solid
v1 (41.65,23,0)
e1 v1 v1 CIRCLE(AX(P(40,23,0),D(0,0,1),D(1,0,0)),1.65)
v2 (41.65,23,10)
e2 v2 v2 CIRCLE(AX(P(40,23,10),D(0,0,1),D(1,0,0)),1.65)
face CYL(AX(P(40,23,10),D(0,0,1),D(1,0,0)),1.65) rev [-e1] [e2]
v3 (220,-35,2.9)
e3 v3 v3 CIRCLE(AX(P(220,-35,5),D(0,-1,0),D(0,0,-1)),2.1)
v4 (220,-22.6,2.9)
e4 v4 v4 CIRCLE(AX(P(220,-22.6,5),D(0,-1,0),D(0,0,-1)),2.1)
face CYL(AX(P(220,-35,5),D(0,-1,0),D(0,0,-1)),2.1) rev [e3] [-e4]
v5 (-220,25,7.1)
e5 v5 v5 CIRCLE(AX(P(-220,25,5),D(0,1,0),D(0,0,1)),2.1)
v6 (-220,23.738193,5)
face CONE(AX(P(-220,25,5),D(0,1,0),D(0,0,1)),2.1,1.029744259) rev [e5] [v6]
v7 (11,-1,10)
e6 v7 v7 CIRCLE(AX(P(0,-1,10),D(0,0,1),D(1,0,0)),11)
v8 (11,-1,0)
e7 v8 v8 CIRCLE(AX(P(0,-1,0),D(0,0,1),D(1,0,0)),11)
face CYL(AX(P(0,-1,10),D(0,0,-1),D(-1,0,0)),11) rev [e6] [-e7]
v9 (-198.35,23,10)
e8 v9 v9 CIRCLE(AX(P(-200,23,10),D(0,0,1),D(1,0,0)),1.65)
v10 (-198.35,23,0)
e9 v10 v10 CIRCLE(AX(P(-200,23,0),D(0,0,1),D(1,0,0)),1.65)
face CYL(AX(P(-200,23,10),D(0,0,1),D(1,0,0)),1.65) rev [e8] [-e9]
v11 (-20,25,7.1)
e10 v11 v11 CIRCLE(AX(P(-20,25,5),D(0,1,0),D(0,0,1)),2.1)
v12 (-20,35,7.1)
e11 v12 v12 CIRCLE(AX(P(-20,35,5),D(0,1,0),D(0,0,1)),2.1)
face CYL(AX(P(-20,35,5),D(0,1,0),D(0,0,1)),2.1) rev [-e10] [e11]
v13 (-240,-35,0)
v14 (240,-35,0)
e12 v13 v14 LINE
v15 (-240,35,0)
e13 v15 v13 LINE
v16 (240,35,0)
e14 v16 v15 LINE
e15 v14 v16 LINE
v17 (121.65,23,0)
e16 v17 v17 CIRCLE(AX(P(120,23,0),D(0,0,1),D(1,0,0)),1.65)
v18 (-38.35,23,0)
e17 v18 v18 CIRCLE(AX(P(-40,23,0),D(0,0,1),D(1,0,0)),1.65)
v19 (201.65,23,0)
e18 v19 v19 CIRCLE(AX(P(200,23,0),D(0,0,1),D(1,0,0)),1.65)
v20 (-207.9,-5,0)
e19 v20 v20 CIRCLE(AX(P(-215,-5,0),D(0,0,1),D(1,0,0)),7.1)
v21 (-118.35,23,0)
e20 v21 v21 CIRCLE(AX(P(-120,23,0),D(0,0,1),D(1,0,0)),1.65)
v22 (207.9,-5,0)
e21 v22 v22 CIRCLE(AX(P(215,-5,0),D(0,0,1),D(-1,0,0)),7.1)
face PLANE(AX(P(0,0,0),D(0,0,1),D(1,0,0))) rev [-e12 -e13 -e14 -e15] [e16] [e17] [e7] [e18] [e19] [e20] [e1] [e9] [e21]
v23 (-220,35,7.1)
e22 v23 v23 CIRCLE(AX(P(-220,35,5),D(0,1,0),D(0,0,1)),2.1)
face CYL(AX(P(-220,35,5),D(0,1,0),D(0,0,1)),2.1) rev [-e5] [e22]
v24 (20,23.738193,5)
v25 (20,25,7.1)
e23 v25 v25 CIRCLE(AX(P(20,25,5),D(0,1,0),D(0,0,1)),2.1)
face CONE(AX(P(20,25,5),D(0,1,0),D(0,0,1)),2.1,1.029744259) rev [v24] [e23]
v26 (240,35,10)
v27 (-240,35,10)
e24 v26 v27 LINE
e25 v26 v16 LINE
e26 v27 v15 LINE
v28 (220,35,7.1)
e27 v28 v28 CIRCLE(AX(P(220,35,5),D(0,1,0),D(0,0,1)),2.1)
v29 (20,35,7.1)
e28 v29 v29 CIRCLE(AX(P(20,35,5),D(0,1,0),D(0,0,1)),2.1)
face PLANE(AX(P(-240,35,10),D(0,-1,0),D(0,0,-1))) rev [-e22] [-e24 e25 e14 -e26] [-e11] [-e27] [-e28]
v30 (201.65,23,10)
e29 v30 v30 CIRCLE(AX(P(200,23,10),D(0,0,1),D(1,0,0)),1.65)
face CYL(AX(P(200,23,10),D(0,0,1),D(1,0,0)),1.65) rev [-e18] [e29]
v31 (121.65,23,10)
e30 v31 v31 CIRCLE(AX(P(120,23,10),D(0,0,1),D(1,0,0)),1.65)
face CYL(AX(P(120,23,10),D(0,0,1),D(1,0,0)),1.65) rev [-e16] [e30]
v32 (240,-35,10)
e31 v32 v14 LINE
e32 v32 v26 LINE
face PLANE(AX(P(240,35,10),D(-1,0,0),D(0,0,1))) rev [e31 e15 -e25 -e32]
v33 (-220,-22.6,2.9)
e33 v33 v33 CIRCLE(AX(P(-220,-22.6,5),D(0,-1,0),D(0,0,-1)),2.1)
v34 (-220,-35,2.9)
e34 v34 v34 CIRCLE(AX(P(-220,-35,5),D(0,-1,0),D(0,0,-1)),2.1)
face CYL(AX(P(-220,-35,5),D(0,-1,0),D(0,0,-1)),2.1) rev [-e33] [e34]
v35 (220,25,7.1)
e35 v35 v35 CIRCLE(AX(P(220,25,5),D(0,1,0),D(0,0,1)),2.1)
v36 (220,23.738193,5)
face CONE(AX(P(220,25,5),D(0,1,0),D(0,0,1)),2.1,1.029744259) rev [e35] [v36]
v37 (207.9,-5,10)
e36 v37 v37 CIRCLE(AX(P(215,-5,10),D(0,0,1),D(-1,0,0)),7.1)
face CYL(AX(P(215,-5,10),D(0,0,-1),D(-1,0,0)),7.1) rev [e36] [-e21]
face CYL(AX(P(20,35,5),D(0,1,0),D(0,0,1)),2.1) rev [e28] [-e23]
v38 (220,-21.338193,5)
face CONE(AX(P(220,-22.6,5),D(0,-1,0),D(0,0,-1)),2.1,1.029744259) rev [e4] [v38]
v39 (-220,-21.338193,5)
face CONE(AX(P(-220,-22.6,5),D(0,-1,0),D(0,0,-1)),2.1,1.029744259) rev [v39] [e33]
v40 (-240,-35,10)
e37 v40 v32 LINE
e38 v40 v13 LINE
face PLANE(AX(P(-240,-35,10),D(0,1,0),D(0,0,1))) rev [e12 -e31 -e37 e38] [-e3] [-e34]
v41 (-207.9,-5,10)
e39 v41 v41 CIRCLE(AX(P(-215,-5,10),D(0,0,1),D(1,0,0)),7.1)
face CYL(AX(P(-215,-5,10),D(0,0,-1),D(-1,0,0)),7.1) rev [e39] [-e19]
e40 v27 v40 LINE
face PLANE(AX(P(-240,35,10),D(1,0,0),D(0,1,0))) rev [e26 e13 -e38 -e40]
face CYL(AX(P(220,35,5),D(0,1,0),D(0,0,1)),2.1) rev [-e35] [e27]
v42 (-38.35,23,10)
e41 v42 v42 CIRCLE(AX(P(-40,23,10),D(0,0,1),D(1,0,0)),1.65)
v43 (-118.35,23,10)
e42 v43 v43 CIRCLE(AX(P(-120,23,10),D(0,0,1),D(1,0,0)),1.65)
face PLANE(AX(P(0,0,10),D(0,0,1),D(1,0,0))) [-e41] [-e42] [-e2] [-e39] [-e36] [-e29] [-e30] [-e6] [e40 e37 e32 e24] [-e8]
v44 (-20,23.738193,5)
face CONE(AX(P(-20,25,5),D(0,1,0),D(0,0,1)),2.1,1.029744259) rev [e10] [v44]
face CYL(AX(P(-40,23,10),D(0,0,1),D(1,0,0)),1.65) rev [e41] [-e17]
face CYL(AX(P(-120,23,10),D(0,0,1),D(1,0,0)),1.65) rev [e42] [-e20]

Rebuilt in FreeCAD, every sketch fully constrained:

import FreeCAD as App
import Part
import Sketcher
Q = App.Units.Quantity

doc = App.newDocument("Part")
body = doc.addObject("PartDesign::Body", "Body")

sketch1 = body.newObject("Sketcher::SketchObject", "Sketch")
sketch1.AttachmentSupport = (doc.getObject("XY_Plane"), [""])
sketch1.MapMode = "FlatFace"
sketch1.addGeometry(Part.LineSegment(App.Vector(-240, 35, 0), App.Vector(-240, -35, 0)), False)
sketch1.addGeometry(Part.LineSegment(App.Vector(-240, -35, 0), App.Vector(240, -35, 0)), False)
sketch1.addGeometry(Part.LineSegment(App.Vector(240, -35, 0), App.Vector(240, 35, 0)), False)
sketch1.addGeometry(Part.LineSegment(App.Vector(240, 35, 0), App.Vector(-240, 35, 0)), False)
sketch1.addGeometry(Part.Circle(App.Vector(-215, -5, 0), App.Vector(0, 0, 1), 7.1), False)
sketch1.addGeometry(Part.Circle(App.Vector(215, -5, 0), App.Vector(0, 0, 1), 7.1), False)
sketch1.addGeometry(Part.Circle(App.Vector(0, -1, 0), App.Vector(0, 0, 1), 11), False)
sketch1.addConstraint(Sketcher.Constraint("Coincident", 0, 2, 1, 1))
sketch1.addConstraint(Sketcher.Constraint("Coincident", 1, 2, 2, 1))
sketch1.addConstraint(Sketcher.Constraint("Coincident", 2, 2, 3, 1))
sketch1.addConstraint(Sketcher.Constraint("Coincident", 3, 2, 0, 1))
sketch1.addConstraint(Sketcher.Constraint("Vertical", 0))
sketch1.addConstraint(Sketcher.Constraint("Horizontal", 1))
sketch1.addConstraint(Sketcher.Constraint("Vertical", 2))
sketch1.addConstraint(Sketcher.Constraint("Horizontal", 3))
sketch1.addConstraint(Sketcher.Constraint("Equal", 4, 5))
sketch1.addConstraint(Sketcher.Constraint("Symmetric", 0, 2, 2, 2, -1, 1))
sketch1.addConstraint(Sketcher.Constraint("Symmetric", 4, 3, 5, 3, -2))
sketch1.addConstraint(Sketcher.Constraint("PointOnObject", 6, 3, -2))
sketch1.addConstraint(Sketcher.Constraint("Diameter", 6, Q("22 mm")))
sketch1.addConstraint(Sketcher.Constraint("Diameter", 4, Q("14.2 mm")))
sketch1.addConstraint(Sketcher.Constraint("DistanceX", 1, 1, 1, 2, Q("480 mm")))
sketch1.addConstraint(Sketcher.Constraint("DistanceY", 0, 2, 0, 1, Q("70 mm")))
sketch1.addConstraint(Sketcher.Constraint("DistanceX", 4, 3, -1, 1, Q("215 mm")))
sketch1.addConstraint(Sketcher.Constraint("DistanceY", 4, 3, -1, 1, Q("5 mm")))
sketch1.addConstraint(Sketcher.Constraint("DistanceY", 6, 3, -1, 1, Q("1 mm")))
pad1 = body.newObject("PartDesign::Pad", "Pad")
pad1.Profile = sketch1
pad1.Length = 10

sketch2 = body.newObject("Sketcher::SketchObject", "Sketch001")
sketch2.AttachmentSupport = (doc.getObject("XZ_Plane"), [""])
sketch2.MapMode = "FlatFace"
sketch2.AttachmentOffset = App.Placement(App.Vector(0, 0, -35), App.Rotation())
sketch2.addGeometry(Part.Circle(App.Vector(220, 5, 0), App.Vector(0, 0, 1), 2.1), False)
sketch2.addGeometry(Part.Circle(App.Vector(-220, 5, 0), App.Vector(0, 0, 1), 2.1), False)
sketch2.addGeometry(Part.Circle(App.Vector(-20, 5, 0), App.Vector(0, 0, 1), 2.1), False)
sketch2.addGeometry(Part.Circle(App.Vector(20, 5, 0), App.Vector(0, 0, 1), 2.1), False)
sketch2.addConstraint(Sketcher.Constraint("Equal", 0, 1))
sketch2.addConstraint(Sketcher.Constraint("Equal", 1, 2))
sketch2.addConstraint(Sketcher.Constraint("Equal", 2, 3))
sketch2.addConstraint(Sketcher.Constraint("Symmetric", 0, 3, 1, 3, -2))
sketch2.addConstraint(Sketcher.Constraint("Symmetric", 2, 3, 3, 3, -2))
sketch2.addConstraint(Sketcher.Constraint("Horizontal", 1, 3, 2, 3))
sketch2.addConstraint(Sketcher.Constraint("Diameter", 0, Q("4.2 mm")))
sketch2.addConstraint(Sketcher.Constraint("DistanceX", -1, 1, 0, 3, Q("220 mm")))
sketch2.addConstraint(Sketcher.Constraint("DistanceY", -1, 1, 0, 3, Q("5 mm")))
sketch2.addConstraint(Sketcher.Constraint("DistanceX", 2, 3, -1, 1, Q("20 mm")))
doc.recompute()
hole = body.newObject("PartDesign::Hole", "Hole")
hole.Profile = sketch2
hole.ThreadType = "None"
hole.Diameter = 4.2
hole.DepthType = "Dimension"
hole.Depth = 10
hole.DrillPoint = "Angled"
hole.DrillPointAngle = 118
hole.Reversed = True

sketch3 = body.newObject("Sketcher::SketchObject", "Sketch002")
sketch3.AttachmentSupport = (doc.getObject("XZ_Plane"), [""])
sketch3.MapMode = "FlatFace"
sketch3.AttachmentOffset = App.Placement(App.Vector(0, 0, 35), App.Rotation())
sketch3.addGeometry(Part.Circle(App.Vector(220, 5, 0), App.Vector(0, 0, 1), 2.1), False)
sketch3.addGeometry(Part.Circle(App.Vector(-220, 5, 0), App.Vector(0, 0, 1), 2.1), False)
sketch3.addConstraint(Sketcher.Constraint("Equal", 0, 1))
sketch3.addConstraint(Sketcher.Constraint("Symmetric", 0, 3, 1, 3, -2))
sketch3.addConstraint(Sketcher.Constraint("Diameter", 0, Q("4.2 mm")))
sketch3.addConstraint(Sketcher.Constraint("DistanceX", -1, 1, 0, 3, Q("220 mm")))
sketch3.addConstraint(Sketcher.Constraint("DistanceY", -1, 1, 0, 3, Q("5 mm")))
doc.recompute()
hole2 = body.newObject("PartDesign::Hole", "Hole001")
hole2.Profile = sketch3
hole2.ThreadType = "None"
hole2.Diameter = 4.2
hole2.DepthType = "Dimension"
hole2.Depth = 12.4
hole2.DrillPoint = "Angled"
hole2.DrillPointAngle = 118

sketch4 = body.newObject("Sketcher::SketchObject", "Sketch003")
sketch4.AttachmentSupport = (doc.getObject("XY_Plane"), [""])
sketch4.MapMode = "FlatFace"
sketch4.AttachmentOffset = App.Placement(App.Vector(0, 0, 10), App.Rotation())
sketch4.addGeometry(Part.Circle(App.Vector(-200, 23, 0), App.Vector(0, 0, 1), 1.65), False)
sketch4.addGeometry(Part.Circle(App.Vector(-120, 23, 0), App.Vector(0, 0, 1), 1.65), False)
sketch4.addGeometry(Part.Circle(App.Vector(-40, 23, 0), App.Vector(0, 0, 1), 1.65), False)
sketch4.addGeometry(Part.Circle(App.Vector(40, 23, 0), App.Vector(0, 0, 1), 1.65), False)
sketch4.addGeometry(Part.Circle(App.Vector(120, 23, 0), App.Vector(0, 0, 1), 1.65), False)
sketch4.addGeometry(Part.Circle(App.Vector(200, 23, 0), App.Vector(0, 0, 1), 1.65), False)
sketch4.addConstraint(Sketcher.Constraint("Equal", 0, 1))
sketch4.addConstraint(Sketcher.Constraint("Equal", 1, 2))
sketch4.addConstraint(Sketcher.Constraint("Equal", 2, 3))
sketch4.addConstraint(Sketcher.Constraint("Equal", 3, 4))
sketch4.addConstraint(Sketcher.Constraint("Equal", 4, 5))
sketch4.addConstraint(Sketcher.Constraint("Symmetric", 2, 3, 3, 3, -2))
sketch4.addConstraint(Sketcher.Constraint("Symmetric", 1, 3, 4, 3, -2))
sketch4.addConstraint(Sketcher.Constraint("Symmetric", 0, 3, 5, 3, -2))
sketch4.addConstraint(Sketcher.Constraint("Horizontal", 0, 3, 1, 3))
sketch4.addConstraint(Sketcher.Constraint("Horizontal", 1, 3, 2, 3))
sketch4.addConstraint(Sketcher.Constraint("Diameter", 0, Q("3.3 mm")))
sketch4.addConstraint(Sketcher.Constraint("DistanceX", 0, 3, -1, 1, Q("200 mm")))
sketch4.addConstraint(Sketcher.Constraint("DistanceY", -1, 1, 0, 3, Q("23 mm")))
sketch4.addConstraint(Sketcher.Constraint("DistanceX", 1, 3, -1, 1, Q("120 mm")))
sketch4.addConstraint(Sketcher.Constraint("DistanceX", 2, 3, -1, 1, Q("40 mm")))
doc.recompute()
hole3 = body.newObject("PartDesign::Hole", "Hole002")
hole3.Profile = sketch4
hole3.ThreadType = "None"
hole3.Diameter = 3.3
hole3.DepthType = "ThroughAll"

doc.recompute()
